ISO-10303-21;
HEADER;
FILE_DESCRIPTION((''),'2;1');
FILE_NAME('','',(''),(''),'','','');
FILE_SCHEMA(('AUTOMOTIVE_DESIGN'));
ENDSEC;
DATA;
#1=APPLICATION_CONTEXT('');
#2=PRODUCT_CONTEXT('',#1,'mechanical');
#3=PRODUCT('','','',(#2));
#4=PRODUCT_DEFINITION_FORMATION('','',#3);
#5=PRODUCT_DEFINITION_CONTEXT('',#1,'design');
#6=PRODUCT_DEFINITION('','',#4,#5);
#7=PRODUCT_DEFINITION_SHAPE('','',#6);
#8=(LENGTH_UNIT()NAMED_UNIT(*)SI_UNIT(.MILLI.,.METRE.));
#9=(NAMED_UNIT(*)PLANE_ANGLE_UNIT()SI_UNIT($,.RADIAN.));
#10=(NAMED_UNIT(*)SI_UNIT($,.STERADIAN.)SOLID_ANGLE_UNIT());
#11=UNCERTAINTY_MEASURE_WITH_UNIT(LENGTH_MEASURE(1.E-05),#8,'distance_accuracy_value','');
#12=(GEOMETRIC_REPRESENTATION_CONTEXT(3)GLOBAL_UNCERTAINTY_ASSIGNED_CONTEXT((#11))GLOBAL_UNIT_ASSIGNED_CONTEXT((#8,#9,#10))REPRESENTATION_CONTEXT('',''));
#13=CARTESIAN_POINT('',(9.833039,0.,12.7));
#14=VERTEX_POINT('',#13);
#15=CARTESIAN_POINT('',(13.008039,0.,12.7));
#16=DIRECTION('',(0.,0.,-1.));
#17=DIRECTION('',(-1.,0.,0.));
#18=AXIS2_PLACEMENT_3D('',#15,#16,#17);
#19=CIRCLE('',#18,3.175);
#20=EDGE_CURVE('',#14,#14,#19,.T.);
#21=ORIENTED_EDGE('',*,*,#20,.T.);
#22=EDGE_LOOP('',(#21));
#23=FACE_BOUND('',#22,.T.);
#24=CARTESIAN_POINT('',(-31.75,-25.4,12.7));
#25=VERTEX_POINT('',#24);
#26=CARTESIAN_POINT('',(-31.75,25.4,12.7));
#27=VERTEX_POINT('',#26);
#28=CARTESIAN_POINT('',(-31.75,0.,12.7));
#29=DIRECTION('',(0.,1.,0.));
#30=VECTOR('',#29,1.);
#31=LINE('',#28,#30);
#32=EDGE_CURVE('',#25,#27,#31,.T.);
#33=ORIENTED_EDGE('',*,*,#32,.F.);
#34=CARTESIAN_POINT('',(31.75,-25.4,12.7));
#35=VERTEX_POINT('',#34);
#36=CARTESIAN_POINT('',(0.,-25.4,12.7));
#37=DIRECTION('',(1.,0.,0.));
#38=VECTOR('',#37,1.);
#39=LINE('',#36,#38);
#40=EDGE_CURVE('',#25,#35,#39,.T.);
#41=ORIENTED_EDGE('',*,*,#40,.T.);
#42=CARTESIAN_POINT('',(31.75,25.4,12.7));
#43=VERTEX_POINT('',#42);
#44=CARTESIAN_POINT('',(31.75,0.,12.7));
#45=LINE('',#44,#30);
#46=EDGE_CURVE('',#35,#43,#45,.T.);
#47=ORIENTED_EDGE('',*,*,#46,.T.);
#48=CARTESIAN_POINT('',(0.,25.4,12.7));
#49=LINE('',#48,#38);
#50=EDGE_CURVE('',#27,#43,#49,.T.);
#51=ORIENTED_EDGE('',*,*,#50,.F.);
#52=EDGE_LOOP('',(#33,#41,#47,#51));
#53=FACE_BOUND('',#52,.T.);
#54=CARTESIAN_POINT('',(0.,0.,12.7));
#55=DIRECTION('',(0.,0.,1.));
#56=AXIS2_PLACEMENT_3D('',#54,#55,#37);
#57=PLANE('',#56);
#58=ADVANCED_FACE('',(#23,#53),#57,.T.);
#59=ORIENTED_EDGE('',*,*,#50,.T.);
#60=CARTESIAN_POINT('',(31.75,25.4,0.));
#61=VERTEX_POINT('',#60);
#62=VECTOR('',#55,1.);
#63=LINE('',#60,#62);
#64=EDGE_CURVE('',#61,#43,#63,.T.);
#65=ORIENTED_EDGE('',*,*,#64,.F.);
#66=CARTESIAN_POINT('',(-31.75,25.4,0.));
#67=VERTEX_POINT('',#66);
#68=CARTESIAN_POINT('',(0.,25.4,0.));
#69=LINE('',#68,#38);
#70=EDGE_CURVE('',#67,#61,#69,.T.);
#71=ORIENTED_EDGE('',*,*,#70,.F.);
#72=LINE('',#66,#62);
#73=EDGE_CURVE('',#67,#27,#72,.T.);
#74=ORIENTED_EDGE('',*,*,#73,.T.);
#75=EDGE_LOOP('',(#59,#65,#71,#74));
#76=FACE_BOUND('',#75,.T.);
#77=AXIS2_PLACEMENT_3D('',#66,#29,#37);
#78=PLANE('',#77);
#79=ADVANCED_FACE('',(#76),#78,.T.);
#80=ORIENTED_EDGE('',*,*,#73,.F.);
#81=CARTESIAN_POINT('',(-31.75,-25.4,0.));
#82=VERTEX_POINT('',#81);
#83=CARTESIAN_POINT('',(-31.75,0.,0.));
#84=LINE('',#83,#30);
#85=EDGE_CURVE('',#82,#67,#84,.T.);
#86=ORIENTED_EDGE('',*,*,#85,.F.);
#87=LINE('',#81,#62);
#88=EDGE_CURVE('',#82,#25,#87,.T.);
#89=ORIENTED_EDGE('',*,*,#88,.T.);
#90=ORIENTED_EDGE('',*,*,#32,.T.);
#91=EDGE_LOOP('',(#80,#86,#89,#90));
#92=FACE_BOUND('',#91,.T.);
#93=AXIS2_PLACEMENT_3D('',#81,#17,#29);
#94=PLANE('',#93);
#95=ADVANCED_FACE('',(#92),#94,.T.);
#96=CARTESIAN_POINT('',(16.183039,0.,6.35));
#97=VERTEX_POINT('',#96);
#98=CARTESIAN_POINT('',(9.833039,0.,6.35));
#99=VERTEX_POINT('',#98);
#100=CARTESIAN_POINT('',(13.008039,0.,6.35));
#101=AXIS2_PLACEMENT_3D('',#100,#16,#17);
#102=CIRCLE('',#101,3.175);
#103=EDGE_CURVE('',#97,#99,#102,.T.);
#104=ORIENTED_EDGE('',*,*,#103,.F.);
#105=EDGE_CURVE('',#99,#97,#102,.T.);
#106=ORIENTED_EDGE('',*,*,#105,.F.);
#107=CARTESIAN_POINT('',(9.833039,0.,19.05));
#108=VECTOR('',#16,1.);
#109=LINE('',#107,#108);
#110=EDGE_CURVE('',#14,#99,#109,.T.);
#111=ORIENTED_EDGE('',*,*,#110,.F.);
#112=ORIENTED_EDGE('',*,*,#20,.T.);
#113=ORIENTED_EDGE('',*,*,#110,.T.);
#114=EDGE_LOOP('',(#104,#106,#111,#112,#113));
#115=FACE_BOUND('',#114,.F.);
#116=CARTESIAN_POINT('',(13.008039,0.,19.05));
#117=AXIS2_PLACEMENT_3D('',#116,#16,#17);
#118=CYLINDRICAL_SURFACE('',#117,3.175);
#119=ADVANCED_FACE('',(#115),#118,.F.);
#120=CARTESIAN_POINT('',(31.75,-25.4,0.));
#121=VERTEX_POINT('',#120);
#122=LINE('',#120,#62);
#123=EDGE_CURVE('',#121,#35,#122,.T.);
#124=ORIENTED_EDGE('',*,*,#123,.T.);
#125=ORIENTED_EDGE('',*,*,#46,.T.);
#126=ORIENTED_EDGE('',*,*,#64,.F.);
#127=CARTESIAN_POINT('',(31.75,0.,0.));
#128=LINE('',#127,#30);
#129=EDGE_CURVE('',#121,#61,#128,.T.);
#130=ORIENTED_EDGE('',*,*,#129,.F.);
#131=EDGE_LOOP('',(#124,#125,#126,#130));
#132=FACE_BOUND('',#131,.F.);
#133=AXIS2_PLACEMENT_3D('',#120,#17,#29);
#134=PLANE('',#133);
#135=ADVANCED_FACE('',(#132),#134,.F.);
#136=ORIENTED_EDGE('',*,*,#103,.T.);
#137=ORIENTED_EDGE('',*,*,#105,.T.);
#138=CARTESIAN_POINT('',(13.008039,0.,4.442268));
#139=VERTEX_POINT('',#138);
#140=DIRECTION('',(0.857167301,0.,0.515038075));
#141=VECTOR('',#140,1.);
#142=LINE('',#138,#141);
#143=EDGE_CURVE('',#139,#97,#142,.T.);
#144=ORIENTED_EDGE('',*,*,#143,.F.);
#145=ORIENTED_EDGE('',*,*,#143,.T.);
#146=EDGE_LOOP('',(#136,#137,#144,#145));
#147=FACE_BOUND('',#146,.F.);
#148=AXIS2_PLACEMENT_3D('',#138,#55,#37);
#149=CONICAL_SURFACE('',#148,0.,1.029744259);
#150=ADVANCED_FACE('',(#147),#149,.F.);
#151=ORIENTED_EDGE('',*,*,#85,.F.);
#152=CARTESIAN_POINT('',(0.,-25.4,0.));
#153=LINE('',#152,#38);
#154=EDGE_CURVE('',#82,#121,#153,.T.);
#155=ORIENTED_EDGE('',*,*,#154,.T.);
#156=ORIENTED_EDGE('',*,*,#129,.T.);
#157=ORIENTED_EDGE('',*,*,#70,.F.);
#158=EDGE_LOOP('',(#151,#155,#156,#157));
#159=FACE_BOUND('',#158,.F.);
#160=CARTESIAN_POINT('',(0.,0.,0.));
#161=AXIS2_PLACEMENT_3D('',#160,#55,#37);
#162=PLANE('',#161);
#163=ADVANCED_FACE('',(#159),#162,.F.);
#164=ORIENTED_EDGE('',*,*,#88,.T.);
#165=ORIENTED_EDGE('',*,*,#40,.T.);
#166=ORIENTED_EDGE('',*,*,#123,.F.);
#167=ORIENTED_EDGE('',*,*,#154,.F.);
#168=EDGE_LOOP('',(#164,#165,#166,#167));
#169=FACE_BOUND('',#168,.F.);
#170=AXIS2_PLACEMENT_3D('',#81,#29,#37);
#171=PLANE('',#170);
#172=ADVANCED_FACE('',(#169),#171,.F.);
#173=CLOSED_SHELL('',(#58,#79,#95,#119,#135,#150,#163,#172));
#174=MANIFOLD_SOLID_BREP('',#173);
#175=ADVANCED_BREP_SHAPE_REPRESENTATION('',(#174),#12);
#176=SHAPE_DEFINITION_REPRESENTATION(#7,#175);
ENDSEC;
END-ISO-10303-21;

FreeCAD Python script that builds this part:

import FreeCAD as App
import Part
import Sketcher
Q = App.Units.Quantity


def add_polygon(sketch, points):
    """Adds a closed chain of lines whose ends are joined by coincident constraints."""
    first, n = sketch.GeometryCount, len(points)
    for a, b in zip(points, points[1:] + points[:1]):
        sketch.addGeometry(Part.LineSegment(App.Vector(*a, 0), App.Vector(*b, 0)), False)
    for i in range(n):
        sketch.addConstraint(Sketcher.Constraint("Coincident", first + i, 2, first + (i + 1) % n, 1))

doc = App.newDocument("Part")
body = doc.addObject("PartDesign::Body", "Body")

# Sketch on XY plane
sketch1 = body.newObject("Sketcher::SketchObject", "Sketch")
sketch1.AttachmentSupport = (doc.getObject("XY_Plane"), [""])
sketch1.MapMode = "FlatFace"
add_polygon(sketch1, [(-31.75, 25.4), (-31.75, -25.4), (31.75, -25.4), (31.75, 25.4)])  # lines 0-3
sketch1.addConstraint(Sketcher.Constraint("Vertical", 0))
sketch1.addConstraint(Sketcher.Constraint("Horizontal", 1))
sketch1.addConstraint(Sketcher.Constraint("Vertical", 2))
sketch1.addConstraint(Sketcher.Constraint("Horizontal", 3))
sketch1.addConstraint(Sketcher.Constraint("Symmetric", 0, 2, 2, 2, -1, 1))
sketch1.addConstraint(Sketcher.Constraint("DistanceY", 0, 2, 0, 1, Q("2 in")))
sketch1.addConstraint(Sketcher.Constraint("DistanceX", 1, 1, 1, 2, Q("2.5 in")))
pad1 = body.newObject("PartDesign::Pad", "Pad")
pad1.Profile = sketch1
pad1.Length = Q("0.5 in")

# Sketch on XY plane
sketch2 = body.newObject("Sketcher::SketchObject", "Sketch001")
sketch2.AttachmentSupport = (doc.getObject("XY_Plane"), [""])
sketch2.MapMode = "FlatFace"
sketch2.AttachmentOffset = App.Placement(App.Vector(0, 0, 0.5 * 25.4), App.Rotation())
sketch2.addGeometry(Part.Circle(App.Vector(13.008039, 0, 0), App.Vector(0, 0, 1), 3.175), False)
sketch2.addConstraint(Sketcher.Constraint("PointOnObject", 0, 3, -1))
sketch2.addConstraint(Sketcher.Constraint("Diameter", 0, Q("0.25 in")))
sketch2.addConstraint(Sketcher.Constraint("DistanceX", -1, 1, 0, 3, Q("13.008039 mm")))
doc.recompute()
hole = body.newObject("PartDesign::Hole", "Hole")
hole.Profile = sketch2
hole.ThreadType = "None"
hole.Diameter = Q("0.25 in")
hole.DepthType = "Dimension"
hole.Depth = Q("0.25 in")
hole.DrillPoint = "Angled"
hole.DrillPointAngle = 118

doc.recompute()
